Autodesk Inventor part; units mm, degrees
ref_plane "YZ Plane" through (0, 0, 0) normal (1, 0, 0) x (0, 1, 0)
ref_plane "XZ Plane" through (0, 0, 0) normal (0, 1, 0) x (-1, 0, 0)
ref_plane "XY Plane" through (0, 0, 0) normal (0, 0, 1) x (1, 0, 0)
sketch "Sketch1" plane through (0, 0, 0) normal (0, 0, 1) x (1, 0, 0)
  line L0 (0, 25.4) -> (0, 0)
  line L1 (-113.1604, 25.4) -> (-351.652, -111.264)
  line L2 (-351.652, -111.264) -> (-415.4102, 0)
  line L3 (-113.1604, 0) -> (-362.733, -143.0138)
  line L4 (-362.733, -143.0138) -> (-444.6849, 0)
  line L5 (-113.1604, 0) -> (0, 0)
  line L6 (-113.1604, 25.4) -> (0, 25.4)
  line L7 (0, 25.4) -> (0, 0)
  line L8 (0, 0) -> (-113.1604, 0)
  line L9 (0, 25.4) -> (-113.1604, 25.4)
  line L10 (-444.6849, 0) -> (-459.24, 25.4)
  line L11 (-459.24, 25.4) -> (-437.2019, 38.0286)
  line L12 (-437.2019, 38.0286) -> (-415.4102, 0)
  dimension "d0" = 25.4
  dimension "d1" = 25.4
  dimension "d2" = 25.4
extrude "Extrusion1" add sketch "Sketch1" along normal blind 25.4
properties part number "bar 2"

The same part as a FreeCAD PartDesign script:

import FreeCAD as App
import Part
import Sketcher
Q = App.Units.Quantity


def add_polygon(sketch, points):
    """Adds a closed chain of lines whose ends are joined by coincident constraints."""
    first, n = sketch.GeometryCount, len(points)
    for a, b in zip(points, points[1:] + points[:1]):
        sketch.addGeometry(Part.LineSegment(App.Vector(*a, 0), App.Vector(*b, 0)), False)
    for i in range(n):
        sketch.addConstraint(Sketcher.Constraint("Coincident", first + i, 2, first + (i + 1) % n, 1))

doc = App.newDocument("Part")
body = doc.addObject("PartDesign::Body", "Body")

# Sketch on XY plane
sketch1 = doc.addObject("Sketcher::SketchObject", "Sketch")
body.addObject(sketch1)
sketch1.AttachmentSupport = (doc.XY_Plane, [""])
sketch1.MapMode = "FlatFace"
add_polygon(sketch1, [(0, 0), (0, 25.4), (-113.1604, 25.4), (-351.652, -111.264), (-415.4102, 0), (-437.2019, 38.0286), (-459.24, 25.4), (-444.6849, 0), (-362.733, -143.0138), (-113.1604, 0)])  # lines 0-9
sketch1.addConstraint([
    Sketcher.Constraint("Vertical", 0),
    Sketcher.Constraint("Horizontal", 1),
    Sketcher.Constraint("Horizontal", 9),
    Sketcher.Constraint("Coincident", 9, 2, -1, 1),
    Sketcher.Constraint("PointOnObject", 3, 2, -1),
    Sketcher.Constraint("PointOnObject", 6, 2, -1),
    Sketcher.Constraint("Perpendicular", 2, 3),
    Sketcher.Constraint("Parallel", 3, 4),
    Sketcher.Constraint("Perpendicular", 4, 5),
    Sketcher.Constraint("Perpendicular", 5, 6),
    Sketcher.Constraint("Parallel", 6, 7),
    Sketcher.Constraint("Perpendicular", 7, 8),
    Sketcher.Constraint("Horizontal", 1, 2, 5, 2),
    Sketcher.Constraint("Vertical", 1, 2, 8, 2),
    Sketcher.Constraint("DistanceY", 0, 1, 0, 2, Q("1 in")),
    Sketcher.Constraint("Distance", 5, Q("1 in")),
    Sketcher.Constraint("Distance", 3, Q("5.0487 in")),
    Sketcher.Constraint("Distance", 8, Q("11.3246 in")),
    Sketcher.Constraint("DistanceX", 1, 2, 1, 1, Q("113.1604 mm")),
])
pad1 = doc.addObject("PartDesign::Pad", "Pad")
body.addObject(pad1)
pad1.Profile = sketch1
pad1.Length = Q("1 in")

doc.recompute()
